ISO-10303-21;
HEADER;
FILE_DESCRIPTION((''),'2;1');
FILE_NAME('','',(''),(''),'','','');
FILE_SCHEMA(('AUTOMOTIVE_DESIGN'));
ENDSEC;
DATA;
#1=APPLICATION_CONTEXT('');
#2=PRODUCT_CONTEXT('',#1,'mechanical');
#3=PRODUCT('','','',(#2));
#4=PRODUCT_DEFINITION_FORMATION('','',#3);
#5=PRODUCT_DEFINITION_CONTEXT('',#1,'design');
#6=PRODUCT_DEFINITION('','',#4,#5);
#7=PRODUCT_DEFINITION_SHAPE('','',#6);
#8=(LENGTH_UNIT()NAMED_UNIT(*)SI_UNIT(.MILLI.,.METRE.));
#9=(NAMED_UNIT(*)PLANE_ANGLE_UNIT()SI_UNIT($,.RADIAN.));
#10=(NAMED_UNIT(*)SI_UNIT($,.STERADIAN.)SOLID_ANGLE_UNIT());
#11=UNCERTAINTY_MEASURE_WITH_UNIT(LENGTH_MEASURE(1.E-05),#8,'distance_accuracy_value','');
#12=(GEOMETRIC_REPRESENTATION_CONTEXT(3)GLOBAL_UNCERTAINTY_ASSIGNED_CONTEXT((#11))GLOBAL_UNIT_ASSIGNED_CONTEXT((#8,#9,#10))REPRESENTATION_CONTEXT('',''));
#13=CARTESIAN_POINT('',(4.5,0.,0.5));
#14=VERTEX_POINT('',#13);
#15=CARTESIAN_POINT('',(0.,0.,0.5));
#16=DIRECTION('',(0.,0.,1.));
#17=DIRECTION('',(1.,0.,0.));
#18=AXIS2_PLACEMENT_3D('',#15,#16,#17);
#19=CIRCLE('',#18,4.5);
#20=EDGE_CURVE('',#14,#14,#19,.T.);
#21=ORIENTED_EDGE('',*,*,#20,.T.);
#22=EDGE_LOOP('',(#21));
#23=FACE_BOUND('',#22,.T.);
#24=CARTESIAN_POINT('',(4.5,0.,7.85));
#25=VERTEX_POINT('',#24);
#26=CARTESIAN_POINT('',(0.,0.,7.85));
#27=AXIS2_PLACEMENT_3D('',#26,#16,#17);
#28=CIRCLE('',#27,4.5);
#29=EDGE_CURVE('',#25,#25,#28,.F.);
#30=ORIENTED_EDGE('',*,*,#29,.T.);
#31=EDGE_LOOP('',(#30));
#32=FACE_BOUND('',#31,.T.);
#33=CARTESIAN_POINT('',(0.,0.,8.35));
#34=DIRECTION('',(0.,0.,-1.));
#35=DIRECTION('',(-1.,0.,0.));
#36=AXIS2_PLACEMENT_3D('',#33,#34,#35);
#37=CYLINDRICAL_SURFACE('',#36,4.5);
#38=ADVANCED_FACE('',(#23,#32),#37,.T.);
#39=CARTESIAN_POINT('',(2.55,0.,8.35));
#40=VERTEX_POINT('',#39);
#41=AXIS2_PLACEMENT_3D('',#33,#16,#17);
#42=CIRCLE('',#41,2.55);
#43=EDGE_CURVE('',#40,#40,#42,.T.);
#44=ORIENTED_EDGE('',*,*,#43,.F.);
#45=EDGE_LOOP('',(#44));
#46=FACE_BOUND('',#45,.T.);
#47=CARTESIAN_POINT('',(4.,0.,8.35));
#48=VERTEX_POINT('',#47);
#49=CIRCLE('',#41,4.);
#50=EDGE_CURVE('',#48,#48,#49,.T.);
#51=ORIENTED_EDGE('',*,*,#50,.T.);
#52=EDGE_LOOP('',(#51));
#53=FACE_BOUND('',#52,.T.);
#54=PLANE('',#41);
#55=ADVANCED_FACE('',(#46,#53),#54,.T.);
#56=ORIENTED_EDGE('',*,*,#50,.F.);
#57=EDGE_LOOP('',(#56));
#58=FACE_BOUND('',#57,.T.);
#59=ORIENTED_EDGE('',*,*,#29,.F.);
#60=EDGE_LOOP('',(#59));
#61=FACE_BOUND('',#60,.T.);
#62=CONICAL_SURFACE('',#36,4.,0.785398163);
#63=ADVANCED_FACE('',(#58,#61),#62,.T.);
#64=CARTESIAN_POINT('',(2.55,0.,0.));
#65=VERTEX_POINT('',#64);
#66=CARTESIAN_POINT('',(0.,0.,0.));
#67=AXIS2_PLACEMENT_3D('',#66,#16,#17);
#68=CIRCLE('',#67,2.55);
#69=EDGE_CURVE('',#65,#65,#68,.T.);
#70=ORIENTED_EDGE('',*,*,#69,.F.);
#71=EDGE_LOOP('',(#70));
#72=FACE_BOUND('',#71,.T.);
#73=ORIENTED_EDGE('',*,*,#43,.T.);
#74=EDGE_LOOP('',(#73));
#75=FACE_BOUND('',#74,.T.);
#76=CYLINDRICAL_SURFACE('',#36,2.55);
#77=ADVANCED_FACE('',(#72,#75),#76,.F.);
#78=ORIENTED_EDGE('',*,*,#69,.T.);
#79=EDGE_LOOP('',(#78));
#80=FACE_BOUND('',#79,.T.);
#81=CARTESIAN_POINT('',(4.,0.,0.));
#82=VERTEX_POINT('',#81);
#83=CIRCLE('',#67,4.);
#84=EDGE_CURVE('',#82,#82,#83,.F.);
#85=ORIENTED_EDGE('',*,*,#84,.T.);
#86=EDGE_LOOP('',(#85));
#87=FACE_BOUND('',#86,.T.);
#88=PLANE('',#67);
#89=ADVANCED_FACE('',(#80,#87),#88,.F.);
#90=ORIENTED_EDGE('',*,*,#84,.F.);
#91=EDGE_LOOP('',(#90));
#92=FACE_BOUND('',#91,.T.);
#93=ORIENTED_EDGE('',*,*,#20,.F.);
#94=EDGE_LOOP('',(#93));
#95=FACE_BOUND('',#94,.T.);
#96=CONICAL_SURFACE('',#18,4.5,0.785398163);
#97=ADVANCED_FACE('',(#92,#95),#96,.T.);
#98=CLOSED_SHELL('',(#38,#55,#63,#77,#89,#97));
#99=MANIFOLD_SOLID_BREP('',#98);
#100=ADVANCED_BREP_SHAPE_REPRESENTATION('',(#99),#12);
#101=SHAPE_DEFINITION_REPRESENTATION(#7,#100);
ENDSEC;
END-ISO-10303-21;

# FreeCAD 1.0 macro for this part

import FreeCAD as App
import Part
import Sketcher

V = App.Vector


def edges_at(feature, points):
    """Names of the edges that pass closest to the given points."""
    edges = feature.Shape.Edges
    near = lambda p: min(range(len(edges)), key=lambda i: edges[i].distToShape(Part.Vertex(*p))[0])
    return sorted({f"Edge{near(p) + 1}" for p in points})

doc = App.newDocument("Part")
body = doc.addObject("PartDesign::Body", "Body")

# Sketch on XY plane
sketch1 = body.newObject("Sketcher::SketchObject", "Sketch")
sketch1.AttachmentSupport = (doc.getObject("XY_Plane"), [""])
sketch1.MapMode = "FlatFace"
sketch1.addGeometry(Part.Circle(V(0, 0, 0), V(0, 0, 1), 4.5), False)
sketch1.addConstraint(Sketcher.Constraint("Coincident", 0, 3, -1, 1))
sketch1.addConstraint(Sketcher.Constraint("Diameter", 0, 9.0))
pad1 = body.newObject("PartDesign::Pad", "Pad")
pad1.Profile = sketch1
pad1.Length = 8.35

# Sketch on XY plane
sketch2 = body.newObject("Sketcher::SketchObject", "Sketch001")
sketch2.AttachmentSupport = (doc.getObject("XY_Plane"), [""])
sketch2.MapMode = "FlatFace"
sketch2.addGeometry(Part.Circle(V(0, 0, 0), V(0, 0, 1), 2.55), False)
sketch2.addConstraint(Sketcher.Constraint("Coincident", 0, 3, -1, 1))
sketch2.addConstraint(Sketcher.Constraint("Diameter", 0, 5.1))
pocket1 = body.newObject("PartDesign::Pocket", "Pocket")
pocket1.Profile = sketch2
pocket1.Type = "ThroughAll"
pocket1.Reversed = True
doc.recompute()

chamfer = body.newObject("PartDesign::Chamfer", "Chamfer")
chamfer.Base = (pocket1, edges_at(pocket1, [(-4.5, 0, 0), (-4.5, 0, 8.35)]))
chamfer.Size = 0.5

doc.recompute()
